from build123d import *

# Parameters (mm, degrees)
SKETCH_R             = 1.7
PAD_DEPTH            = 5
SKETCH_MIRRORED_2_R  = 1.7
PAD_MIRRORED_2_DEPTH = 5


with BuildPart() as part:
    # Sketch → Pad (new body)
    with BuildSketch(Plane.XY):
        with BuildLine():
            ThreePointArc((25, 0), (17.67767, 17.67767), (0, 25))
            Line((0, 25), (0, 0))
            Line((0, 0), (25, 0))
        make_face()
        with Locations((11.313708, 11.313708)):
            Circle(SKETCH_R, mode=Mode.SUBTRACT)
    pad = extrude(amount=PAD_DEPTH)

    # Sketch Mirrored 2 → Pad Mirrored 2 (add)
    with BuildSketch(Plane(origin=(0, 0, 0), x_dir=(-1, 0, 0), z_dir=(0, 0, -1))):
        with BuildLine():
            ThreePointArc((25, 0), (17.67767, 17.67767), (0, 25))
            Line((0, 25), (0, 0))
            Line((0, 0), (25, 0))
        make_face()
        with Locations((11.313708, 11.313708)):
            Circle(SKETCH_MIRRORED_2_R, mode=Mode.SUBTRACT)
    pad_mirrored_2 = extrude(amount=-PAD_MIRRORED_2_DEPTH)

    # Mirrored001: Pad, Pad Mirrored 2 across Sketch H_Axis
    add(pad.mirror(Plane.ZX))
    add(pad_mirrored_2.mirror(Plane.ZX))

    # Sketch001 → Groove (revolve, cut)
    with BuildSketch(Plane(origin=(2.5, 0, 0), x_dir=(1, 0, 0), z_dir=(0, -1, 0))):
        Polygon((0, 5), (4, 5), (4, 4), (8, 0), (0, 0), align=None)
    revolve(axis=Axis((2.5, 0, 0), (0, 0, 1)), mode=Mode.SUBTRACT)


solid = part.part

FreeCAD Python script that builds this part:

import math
import FreeCAD as App
import Part
import Sketcher

V = App.Vector
Q = App.Units.Quantity

doc = App.newDocument("Part")
body = doc.addObject("PartDesign::Body", "Body")

# Sketch on XY plane
sketch1 = body.newObject("Sketcher::SketchObject", "Sketch")
sketch1.AttachmentSupport = (doc.getObject("XY_Plane"), [""])
sketch1.MapMode = "FlatFace"
sketch1.addGeometry(Part.ArcOfCircle(Part.Circle(V(0, 0, 0), V(0, 0, 1), 25), math.radians(0), math.radians(90)), False)
sketch1.addGeometry(Part.LineSegment(V(0, 25, 0), V(0, 0, 0)), False)
sketch1.addGeometry(Part.LineSegment(V(0, 0, 0), V(25, 0, 0)), False)
sketch1.addGeometry(Part.Circle(V(11.3, 11.3, 0), V(0, 0, 1), 1.7), False)
sketch1.addConstraint(Sketcher.Constraint("Coincident", 0, 2, 1, 1))
sketch1.addConstraint(Sketcher.Constraint("Coincident", 1, 2, 2, 1))
sketch1.addConstraint(Sketcher.Constraint("Coincident", 2, 2, 0, 1))
sketch1.addConstraint(Sketcher.Constraint("Vertical", 1))
sketch1.addConstraint(Sketcher.Constraint("Horizontal", 2))
sketch1.addConstraint(Sketcher.Constraint("Coincident", 0, 3, -1, 1))
sketch1.addConstraint(Sketcher.Constraint("Coincident", 1, 2, -1, 1))
sketch1.addConstraint(Sketcher.Constraint("Radius", 0, Q("24.999998 mm")))
sketch1.addConstraint(Sketcher.Constraint("Diameter", 3, Q("3.4 mm")))
sketch1.addConstraint(Sketcher.Constraint("DistanceY", 3, 3, 0, 2, Q("13.686292 mm")))
sketch1.addConstraint(Sketcher.Constraint("DistanceX", -1, 1, 3, 3, Q("11.313708 mm")))
pad1 = body.newObject("PartDesign::Pad", "Pad")
pad1.Profile = sketch1
pad1.Length = 5

# Sketch on XY plane
sketch2 = body.newObject("Sketcher::SketchObject", "Sketch001")
sketch2.AttachmentSupport = (doc.getObject("XY_Plane"), [""])
sketch2.MapMode = "FlatFace"
sketch2.addGeometry(Part.ArcOfCircle(Part.Circle(V(0, 0, 0), V(0, 0, 1), 25), math.radians(90), math.radians(180)), False)
sketch2.addGeometry(Part.LineSegment(V(0, 25, 0), V(0, 0, 0)), False)
sketch2.addGeometry(Part.LineSegment(V(0, 0, 0), V(-25, 0, 0)), False)
sketch2.addGeometry(Part.Circle(V(-11.3, 11.3, 0), V(0, 0, 1), 1.7), False)
sketch2.addConstraint(Sketcher.Constraint("Coincident", 0, 1, 1, 1))
sketch2.addConstraint(Sketcher.Constraint("Coincident", 1, 2, 2, 1))
sketch2.addConstraint(Sketcher.Constraint("Coincident", 2, 2, 0, 2))
sketch2.addConstraint(Sketcher.Constraint("Vertical", 1))
sketch2.addConstraint(Sketcher.Constraint("Horizontal", 2))
sketch2.addConstraint(Sketcher.Constraint("Coincident", 0, 3, -1, 1))
sketch2.addConstraint(Sketcher.Constraint("Coincident", 1, 2, -1, 1))
sketch2.addConstraint(Sketcher.Constraint("Radius", 0, Q("24.999998 mm")))
sketch2.addConstraint(Sketcher.Constraint("Diameter", 3, Q("3.4 mm")))
sketch2.addConstraint(Sketcher.Constraint("DistanceY", 3, 3, 0, 1, Q("13.686292 mm")))
sketch2.addConstraint(Sketcher.Constraint("DistanceX", 3, 3, -1, 1, Q("11.313708 mm")))
pad2 = body.newObject("PartDesign::Pad", "Pad001")
pad2.Profile = sketch2
pad2.Length = 5
doc.recompute()

mirrored = body.newObject("PartDesign::Mirrored", "Mirrored")
mirrored.Originals = [pad1, pad2]
mirrored.MirrorPlane = (doc.getObject("XZ_Plane"), [""])
body.Tip = mirrored

# Sketch on XZ plane
sketch3 = body.newObject("Sketcher::SketchObject", "Sketch002")
sketch3.AttachmentSupport = (doc.getObject("XZ_Plane"), [""])
sketch3.MapMode = "FlatFace"
sketch3.addGeometry(Part.LineSegment(V(6.5, 5, 0), V(2.5, 5, 0)), False)
sketch3.addGeometry(Part.LineSegment(V(2.5, 5, 0), V(2.5, 0, 0)), False)
sketch3.addGeometry(Part.LineSegment(V(2.5, 0, 0), V(10.5, 0, 0)), False)
sketch3.addGeometry(Part.LineSegment(V(10.5, 0, 0), V(6.5, 4, 0)), False)
sketch3.addGeometry(Part.LineSegment(V(6.5, 4, 0), V(6.5, 5, 0)), False)
sketch3.addGeometry(Part.LineSegment(V(2.5, 0, 0), V(2.5, 5, 0)), True)  # axis
sketch3.addConstraint(Sketcher.Constraint("Coincident", 0, 2, 1, 1))
sketch3.addConstraint(Sketcher.Constraint("Coincident", 1, 2, 2, 1))
sketch3.addConstraint(Sketcher.Constraint("Coincident", 2, 2, 3, 1))
sketch3.addConstraint(Sketcher.Constraint("Coincident", 3, 2, 4, 1))
sketch3.addConstraint(Sketcher.Constraint("Coincident", 4, 2, 0, 1))
sketch3.addConstraint(Sketcher.Constraint("Horizontal", 0))
sketch3.addConstraint(Sketcher.Constraint("Vertical", 1))
sketch3.addConstraint(Sketcher.Constraint("Horizontal", 2))
sketch3.addConstraint(Sketcher.Constraint("Vertical", 4))
sketch3.addConstraint(Sketcher.Constraint("Vertical", 5))
sketch3.addConstraint(Sketcher.Constraint("Coincident", 5, 1, 1, 2))
sketch3.addConstraint(Sketcher.Constraint("PointOnObject", 1, 2, -1))
sketch3.addConstraint(Sketcher.Constraint("Horizontal", 4, 2, 5, 2))
sketch3.addConstraint(Sketcher.Constraint("DistanceX", 0, 2, 0, 1, Q("4 mm")))
sketch3.addConstraint(Sketcher.Constraint("DistanceX", 2, 1, 2, 2, Q("8 mm")))
sketch3.addConstraint(Sketcher.Constraint("DistanceY", 1, 2, 1, 1, Q("5 mm")))
sketch3.addConstraint(Sketcher.Constraint("DistanceY", 4, 1, 4, 2, Q("1 mm")))
sketch3.addConstraint(Sketcher.Constraint("DistanceX", -1, 1, 0, 2, Q("2.5 mm")))
groove = body.newObject("PartDesign::Groove", "Groove")
groove.Profile = sketch3
groove.ReferenceAxis = (sketch3, ["Axis0"])
groove.Angle = 360

doc.recompute()
